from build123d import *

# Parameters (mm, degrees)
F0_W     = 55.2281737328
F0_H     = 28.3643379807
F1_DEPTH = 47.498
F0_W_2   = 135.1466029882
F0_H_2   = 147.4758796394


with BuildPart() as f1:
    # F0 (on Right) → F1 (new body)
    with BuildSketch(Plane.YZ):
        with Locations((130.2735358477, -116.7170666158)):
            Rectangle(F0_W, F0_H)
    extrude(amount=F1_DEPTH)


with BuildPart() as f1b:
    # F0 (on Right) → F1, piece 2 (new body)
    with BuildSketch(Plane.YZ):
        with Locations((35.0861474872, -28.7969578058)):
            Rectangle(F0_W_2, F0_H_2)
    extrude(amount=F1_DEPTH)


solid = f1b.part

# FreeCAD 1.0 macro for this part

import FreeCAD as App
import Part
import Sketcher

V = App.Vector
Q = App.Units.Quantity

doc = App.newDocument("Part")
body = doc.addObject("PartDesign::Body", "Body")

# Sketch on YZ plane
sketch1 = body.newObject("Sketcher::SketchObject", "Sketch")
sketch1.AttachmentSupport = (doc.getObject("YZ_Plane"), [""])
sketch1.MapMode = "FlatFace"
sketch1.addGeometry([
    Part.LineSegment(V(103, -103, 0), V(103, -131, 0)),
    Part.LineSegment(V(103, -131, 0), V(158, -131, 0)),
    Part.LineSegment(V(158, -131, 0), V(158, -103, 0)),
    Part.LineSegment(V(158, -103, 0), V(103, -103, 0)),
], False)
sketch1.addConstraint([
    Sketcher.Constraint("Coincident", 0, 2, 1, 1),
    Sketcher.Constraint("Coincident", 1, 2, 2, 1),
    Sketcher.Constraint("Coincident", 2, 2, 3, 1),
    Sketcher.Constraint("Coincident", 3, 2, 0, 1),
    Sketcher.Constraint("Vertical", 0),
    Sketcher.Constraint("Horizontal", 1),
    Sketcher.Constraint("Vertical", 2),
    Sketcher.Constraint("Horizontal", 3),
    Sketcher.Constraint("DistanceX", 1, 1, 1, 2, 55.228174),
    Sketcher.Constraint("DistanceY", 0, 2, 0, 1, 28.364338),
    Sketcher.Constraint("DistanceX", -1, 1, 0, 2, 102.659449),
    Sketcher.Constraint("DistanceY", 0, 2, -1, 1, 130.899236),
])
pad1 = body.newObject("PartDesign::Pad", "Pad")
pad1.Profile = sketch1
pad1.Length = Q("1.87 in")
body2 = doc.addObject("PartDesign::Body", "Body001")

# Sketch on YZ plane
sketch2 = body2.newObject("Sketcher::SketchObject", "Sketch001")
sketch2.AttachmentSupport = (doc.getObject("YZ_Plane001"), [""])
sketch2.MapMode = "FlatFace"
sketch2.addGeometry([
    Part.LineSegment(V(-32, 45, 0), V(-32, -103, 0)),
    Part.LineSegment(V(-32, -103, 0), V(103, -103, 0)),
    Part.LineSegment(V(103, -103, 0), V(103, 45, 0)),
    Part.LineSegment(V(103, 45, 0), V(-32, 45, 0)),
], False)
sketch2.addConstraint([
    Sketcher.Constraint("Coincident", 0, 2, 1, 1),
    Sketcher.Constraint("Coincident", 1, 2, 2, 1),
    Sketcher.Constraint("Coincident", 2, 2, 3, 1),
    Sketcher.Constraint("Coincident", 3, 2, 0, 1),
    Sketcher.Constraint("Vertical", 0),
    Sketcher.Constraint("Horizontal", 1),
    Sketcher.Constraint("Vertical", 2),
    Sketcher.Constraint("Horizontal", 3),
    Sketcher.Constraint("DistanceY", 0, 2, 0, 1, 147.47588),
    Sketcher.Constraint("DistanceX", 1, 1, 1, 2, 135.146603),
    Sketcher.Constraint("DistanceX", -1, 1, 1, 2, 102.659449),
    Sketcher.Constraint("DistanceY", 0, 2, -1, 1, 102.534898),
])
pad2 = body2.newObject("PartDesign::Pad", "Pad001")
pad2.Profile = sketch2
pad2.Length = Q("1.87 in")
body.Visibility = False

doc.recompute()
